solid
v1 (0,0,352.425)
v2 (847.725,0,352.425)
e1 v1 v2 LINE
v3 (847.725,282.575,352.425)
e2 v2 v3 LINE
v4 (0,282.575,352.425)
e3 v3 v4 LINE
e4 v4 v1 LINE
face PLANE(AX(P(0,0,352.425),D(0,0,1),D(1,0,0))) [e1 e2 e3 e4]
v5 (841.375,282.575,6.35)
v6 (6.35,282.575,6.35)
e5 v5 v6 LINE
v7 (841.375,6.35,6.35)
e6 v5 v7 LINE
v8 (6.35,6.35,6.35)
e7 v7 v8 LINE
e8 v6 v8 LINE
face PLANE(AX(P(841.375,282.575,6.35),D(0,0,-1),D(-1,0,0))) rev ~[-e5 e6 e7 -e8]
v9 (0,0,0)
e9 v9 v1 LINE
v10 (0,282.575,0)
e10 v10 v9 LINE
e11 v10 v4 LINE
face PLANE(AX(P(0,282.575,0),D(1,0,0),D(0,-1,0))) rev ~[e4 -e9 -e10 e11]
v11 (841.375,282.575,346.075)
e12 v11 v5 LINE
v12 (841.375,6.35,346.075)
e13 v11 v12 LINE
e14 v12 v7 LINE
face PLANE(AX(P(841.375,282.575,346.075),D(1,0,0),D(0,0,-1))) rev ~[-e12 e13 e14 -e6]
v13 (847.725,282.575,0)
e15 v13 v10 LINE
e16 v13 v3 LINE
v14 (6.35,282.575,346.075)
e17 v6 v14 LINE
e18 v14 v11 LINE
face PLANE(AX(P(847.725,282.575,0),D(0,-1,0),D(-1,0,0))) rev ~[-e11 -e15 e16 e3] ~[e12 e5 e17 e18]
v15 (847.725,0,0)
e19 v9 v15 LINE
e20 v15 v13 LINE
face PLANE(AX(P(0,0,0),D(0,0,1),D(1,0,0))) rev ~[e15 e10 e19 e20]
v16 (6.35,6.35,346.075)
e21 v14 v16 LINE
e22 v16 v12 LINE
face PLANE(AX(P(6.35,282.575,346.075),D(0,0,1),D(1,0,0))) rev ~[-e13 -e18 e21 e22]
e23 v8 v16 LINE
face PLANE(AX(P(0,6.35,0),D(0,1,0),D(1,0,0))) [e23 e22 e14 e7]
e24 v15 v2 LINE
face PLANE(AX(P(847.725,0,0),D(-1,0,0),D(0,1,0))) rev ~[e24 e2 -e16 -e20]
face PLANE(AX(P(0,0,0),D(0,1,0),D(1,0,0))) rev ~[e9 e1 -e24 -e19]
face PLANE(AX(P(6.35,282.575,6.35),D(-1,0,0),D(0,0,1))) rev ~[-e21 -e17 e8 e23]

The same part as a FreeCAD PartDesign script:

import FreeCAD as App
import Part
import Sketcher

V = App.Vector
Q = App.Units.Quantity

doc = App.newDocument("Part")
body = doc.addObject("PartDesign::Body", "Body")

# Sketch on XY plane
sketch1 = body.newObject("Sketcher::SketchObject", "Sketch")
sketch1.AttachmentSupport = (doc.getObject("XY_Plane"), [""])
sketch1.MapMode = "FlatFace"
sketch1.addGeometry([
    Part.LineSegment(V(0, 283, 0), V(0, 0, 0)),
    Part.LineSegment(V(0, 0, 0), V(848, 0, 0)),
    Part.LineSegment(V(848, 0, 0), V(848, 283, 0)),
    Part.LineSegment(V(848, 283, 0), V(0, 283, 0)),
], False)
sketch1.addConstraint([
    Sketcher.Constraint("Coincident", 0, 2, 1, 1),
    Sketcher.Constraint("Coincident", 1, 2, 2, 1),
    Sketcher.Constraint("Coincident", 2, 2, 3, 1),
    Sketcher.Constraint("Coincident", 3, 2, 0, 1),
    Sketcher.Constraint("Vertical", 0),
    Sketcher.Constraint("Horizontal", 1),
    Sketcher.Constraint("Vertical", 2),
    Sketcher.Constraint("Horizontal", 3),
    Sketcher.Constraint("Coincident", 0, 2, -1, 1),
    Sketcher.Constraint("DistanceX", 1, 1, 1, 2, Q("33.375 in")),
    Sketcher.Constraint("DistanceY", 0, 2, 0, 1, Q("11.125 in")),
])
pad1 = body.newObject("PartDesign::Pad", "Pad")
pad1.Profile = sketch1
pad1.Length = Q("13.875 in")

# Sketch on XZ plane
sketch2 = body.newObject("Sketcher::SketchObject", "Sketch001")
sketch2.AttachmentSupport = (doc.getObject("XZ_Plane"), [""])
sketch2.MapMode = "FlatFace"
sketch2.AttachmentOffset = App.Placement(V(0, 0, -11.125 * 25.4), App.Rotation())
sketch2.addGeometry([
    Part.LineSegment(V(6, 6, 0), V(6, 346, 0)),
    Part.LineSegment(V(6, 346, 0), V(841, 346, 0)),
    Part.LineSegment(V(841, 346, 0), V(841, 6, 0)),
    Part.LineSegment(V(841, 6, 0), V(6, 6, 0)),
], False)
sketch2.addConstraint([
    Sketcher.Constraint("Coincident", 0, 2, 1, 1),
    Sketcher.Constraint("Coincident", 1, 2, 2, 1),
    Sketcher.Constraint("Coincident", 2, 2, 3, 1),
    Sketcher.Constraint("Coincident", 3, 2, 0, 1),
    Sketcher.Constraint("Vertical", 0),
    Sketcher.Constraint("Horizontal", 1),
    Sketcher.Constraint("Vertical", 2),
    Sketcher.Constraint("Horizontal", 3),
    Sketcher.Constraint("DistanceX", 1, 1, 1, 2, Q("32.875 in")),
    Sketcher.Constraint("DistanceY", 0, 1, 0, 2, Q("13.375 in")),
    Sketcher.Constraint("DistanceX", -1, 1, 0, 2, Q("0.25 in")),
    Sketcher.Constraint("DistanceY", -1, 1, 2, 2, Q("0.25 in")),
])
pocket1 = body.newObject("PartDesign::Pocket", "Pocket")
pocket1.Profile = sketch2
pocket1.Length = Q("10.875 in")
pocket1.Reversed = True

doc.recompute()
